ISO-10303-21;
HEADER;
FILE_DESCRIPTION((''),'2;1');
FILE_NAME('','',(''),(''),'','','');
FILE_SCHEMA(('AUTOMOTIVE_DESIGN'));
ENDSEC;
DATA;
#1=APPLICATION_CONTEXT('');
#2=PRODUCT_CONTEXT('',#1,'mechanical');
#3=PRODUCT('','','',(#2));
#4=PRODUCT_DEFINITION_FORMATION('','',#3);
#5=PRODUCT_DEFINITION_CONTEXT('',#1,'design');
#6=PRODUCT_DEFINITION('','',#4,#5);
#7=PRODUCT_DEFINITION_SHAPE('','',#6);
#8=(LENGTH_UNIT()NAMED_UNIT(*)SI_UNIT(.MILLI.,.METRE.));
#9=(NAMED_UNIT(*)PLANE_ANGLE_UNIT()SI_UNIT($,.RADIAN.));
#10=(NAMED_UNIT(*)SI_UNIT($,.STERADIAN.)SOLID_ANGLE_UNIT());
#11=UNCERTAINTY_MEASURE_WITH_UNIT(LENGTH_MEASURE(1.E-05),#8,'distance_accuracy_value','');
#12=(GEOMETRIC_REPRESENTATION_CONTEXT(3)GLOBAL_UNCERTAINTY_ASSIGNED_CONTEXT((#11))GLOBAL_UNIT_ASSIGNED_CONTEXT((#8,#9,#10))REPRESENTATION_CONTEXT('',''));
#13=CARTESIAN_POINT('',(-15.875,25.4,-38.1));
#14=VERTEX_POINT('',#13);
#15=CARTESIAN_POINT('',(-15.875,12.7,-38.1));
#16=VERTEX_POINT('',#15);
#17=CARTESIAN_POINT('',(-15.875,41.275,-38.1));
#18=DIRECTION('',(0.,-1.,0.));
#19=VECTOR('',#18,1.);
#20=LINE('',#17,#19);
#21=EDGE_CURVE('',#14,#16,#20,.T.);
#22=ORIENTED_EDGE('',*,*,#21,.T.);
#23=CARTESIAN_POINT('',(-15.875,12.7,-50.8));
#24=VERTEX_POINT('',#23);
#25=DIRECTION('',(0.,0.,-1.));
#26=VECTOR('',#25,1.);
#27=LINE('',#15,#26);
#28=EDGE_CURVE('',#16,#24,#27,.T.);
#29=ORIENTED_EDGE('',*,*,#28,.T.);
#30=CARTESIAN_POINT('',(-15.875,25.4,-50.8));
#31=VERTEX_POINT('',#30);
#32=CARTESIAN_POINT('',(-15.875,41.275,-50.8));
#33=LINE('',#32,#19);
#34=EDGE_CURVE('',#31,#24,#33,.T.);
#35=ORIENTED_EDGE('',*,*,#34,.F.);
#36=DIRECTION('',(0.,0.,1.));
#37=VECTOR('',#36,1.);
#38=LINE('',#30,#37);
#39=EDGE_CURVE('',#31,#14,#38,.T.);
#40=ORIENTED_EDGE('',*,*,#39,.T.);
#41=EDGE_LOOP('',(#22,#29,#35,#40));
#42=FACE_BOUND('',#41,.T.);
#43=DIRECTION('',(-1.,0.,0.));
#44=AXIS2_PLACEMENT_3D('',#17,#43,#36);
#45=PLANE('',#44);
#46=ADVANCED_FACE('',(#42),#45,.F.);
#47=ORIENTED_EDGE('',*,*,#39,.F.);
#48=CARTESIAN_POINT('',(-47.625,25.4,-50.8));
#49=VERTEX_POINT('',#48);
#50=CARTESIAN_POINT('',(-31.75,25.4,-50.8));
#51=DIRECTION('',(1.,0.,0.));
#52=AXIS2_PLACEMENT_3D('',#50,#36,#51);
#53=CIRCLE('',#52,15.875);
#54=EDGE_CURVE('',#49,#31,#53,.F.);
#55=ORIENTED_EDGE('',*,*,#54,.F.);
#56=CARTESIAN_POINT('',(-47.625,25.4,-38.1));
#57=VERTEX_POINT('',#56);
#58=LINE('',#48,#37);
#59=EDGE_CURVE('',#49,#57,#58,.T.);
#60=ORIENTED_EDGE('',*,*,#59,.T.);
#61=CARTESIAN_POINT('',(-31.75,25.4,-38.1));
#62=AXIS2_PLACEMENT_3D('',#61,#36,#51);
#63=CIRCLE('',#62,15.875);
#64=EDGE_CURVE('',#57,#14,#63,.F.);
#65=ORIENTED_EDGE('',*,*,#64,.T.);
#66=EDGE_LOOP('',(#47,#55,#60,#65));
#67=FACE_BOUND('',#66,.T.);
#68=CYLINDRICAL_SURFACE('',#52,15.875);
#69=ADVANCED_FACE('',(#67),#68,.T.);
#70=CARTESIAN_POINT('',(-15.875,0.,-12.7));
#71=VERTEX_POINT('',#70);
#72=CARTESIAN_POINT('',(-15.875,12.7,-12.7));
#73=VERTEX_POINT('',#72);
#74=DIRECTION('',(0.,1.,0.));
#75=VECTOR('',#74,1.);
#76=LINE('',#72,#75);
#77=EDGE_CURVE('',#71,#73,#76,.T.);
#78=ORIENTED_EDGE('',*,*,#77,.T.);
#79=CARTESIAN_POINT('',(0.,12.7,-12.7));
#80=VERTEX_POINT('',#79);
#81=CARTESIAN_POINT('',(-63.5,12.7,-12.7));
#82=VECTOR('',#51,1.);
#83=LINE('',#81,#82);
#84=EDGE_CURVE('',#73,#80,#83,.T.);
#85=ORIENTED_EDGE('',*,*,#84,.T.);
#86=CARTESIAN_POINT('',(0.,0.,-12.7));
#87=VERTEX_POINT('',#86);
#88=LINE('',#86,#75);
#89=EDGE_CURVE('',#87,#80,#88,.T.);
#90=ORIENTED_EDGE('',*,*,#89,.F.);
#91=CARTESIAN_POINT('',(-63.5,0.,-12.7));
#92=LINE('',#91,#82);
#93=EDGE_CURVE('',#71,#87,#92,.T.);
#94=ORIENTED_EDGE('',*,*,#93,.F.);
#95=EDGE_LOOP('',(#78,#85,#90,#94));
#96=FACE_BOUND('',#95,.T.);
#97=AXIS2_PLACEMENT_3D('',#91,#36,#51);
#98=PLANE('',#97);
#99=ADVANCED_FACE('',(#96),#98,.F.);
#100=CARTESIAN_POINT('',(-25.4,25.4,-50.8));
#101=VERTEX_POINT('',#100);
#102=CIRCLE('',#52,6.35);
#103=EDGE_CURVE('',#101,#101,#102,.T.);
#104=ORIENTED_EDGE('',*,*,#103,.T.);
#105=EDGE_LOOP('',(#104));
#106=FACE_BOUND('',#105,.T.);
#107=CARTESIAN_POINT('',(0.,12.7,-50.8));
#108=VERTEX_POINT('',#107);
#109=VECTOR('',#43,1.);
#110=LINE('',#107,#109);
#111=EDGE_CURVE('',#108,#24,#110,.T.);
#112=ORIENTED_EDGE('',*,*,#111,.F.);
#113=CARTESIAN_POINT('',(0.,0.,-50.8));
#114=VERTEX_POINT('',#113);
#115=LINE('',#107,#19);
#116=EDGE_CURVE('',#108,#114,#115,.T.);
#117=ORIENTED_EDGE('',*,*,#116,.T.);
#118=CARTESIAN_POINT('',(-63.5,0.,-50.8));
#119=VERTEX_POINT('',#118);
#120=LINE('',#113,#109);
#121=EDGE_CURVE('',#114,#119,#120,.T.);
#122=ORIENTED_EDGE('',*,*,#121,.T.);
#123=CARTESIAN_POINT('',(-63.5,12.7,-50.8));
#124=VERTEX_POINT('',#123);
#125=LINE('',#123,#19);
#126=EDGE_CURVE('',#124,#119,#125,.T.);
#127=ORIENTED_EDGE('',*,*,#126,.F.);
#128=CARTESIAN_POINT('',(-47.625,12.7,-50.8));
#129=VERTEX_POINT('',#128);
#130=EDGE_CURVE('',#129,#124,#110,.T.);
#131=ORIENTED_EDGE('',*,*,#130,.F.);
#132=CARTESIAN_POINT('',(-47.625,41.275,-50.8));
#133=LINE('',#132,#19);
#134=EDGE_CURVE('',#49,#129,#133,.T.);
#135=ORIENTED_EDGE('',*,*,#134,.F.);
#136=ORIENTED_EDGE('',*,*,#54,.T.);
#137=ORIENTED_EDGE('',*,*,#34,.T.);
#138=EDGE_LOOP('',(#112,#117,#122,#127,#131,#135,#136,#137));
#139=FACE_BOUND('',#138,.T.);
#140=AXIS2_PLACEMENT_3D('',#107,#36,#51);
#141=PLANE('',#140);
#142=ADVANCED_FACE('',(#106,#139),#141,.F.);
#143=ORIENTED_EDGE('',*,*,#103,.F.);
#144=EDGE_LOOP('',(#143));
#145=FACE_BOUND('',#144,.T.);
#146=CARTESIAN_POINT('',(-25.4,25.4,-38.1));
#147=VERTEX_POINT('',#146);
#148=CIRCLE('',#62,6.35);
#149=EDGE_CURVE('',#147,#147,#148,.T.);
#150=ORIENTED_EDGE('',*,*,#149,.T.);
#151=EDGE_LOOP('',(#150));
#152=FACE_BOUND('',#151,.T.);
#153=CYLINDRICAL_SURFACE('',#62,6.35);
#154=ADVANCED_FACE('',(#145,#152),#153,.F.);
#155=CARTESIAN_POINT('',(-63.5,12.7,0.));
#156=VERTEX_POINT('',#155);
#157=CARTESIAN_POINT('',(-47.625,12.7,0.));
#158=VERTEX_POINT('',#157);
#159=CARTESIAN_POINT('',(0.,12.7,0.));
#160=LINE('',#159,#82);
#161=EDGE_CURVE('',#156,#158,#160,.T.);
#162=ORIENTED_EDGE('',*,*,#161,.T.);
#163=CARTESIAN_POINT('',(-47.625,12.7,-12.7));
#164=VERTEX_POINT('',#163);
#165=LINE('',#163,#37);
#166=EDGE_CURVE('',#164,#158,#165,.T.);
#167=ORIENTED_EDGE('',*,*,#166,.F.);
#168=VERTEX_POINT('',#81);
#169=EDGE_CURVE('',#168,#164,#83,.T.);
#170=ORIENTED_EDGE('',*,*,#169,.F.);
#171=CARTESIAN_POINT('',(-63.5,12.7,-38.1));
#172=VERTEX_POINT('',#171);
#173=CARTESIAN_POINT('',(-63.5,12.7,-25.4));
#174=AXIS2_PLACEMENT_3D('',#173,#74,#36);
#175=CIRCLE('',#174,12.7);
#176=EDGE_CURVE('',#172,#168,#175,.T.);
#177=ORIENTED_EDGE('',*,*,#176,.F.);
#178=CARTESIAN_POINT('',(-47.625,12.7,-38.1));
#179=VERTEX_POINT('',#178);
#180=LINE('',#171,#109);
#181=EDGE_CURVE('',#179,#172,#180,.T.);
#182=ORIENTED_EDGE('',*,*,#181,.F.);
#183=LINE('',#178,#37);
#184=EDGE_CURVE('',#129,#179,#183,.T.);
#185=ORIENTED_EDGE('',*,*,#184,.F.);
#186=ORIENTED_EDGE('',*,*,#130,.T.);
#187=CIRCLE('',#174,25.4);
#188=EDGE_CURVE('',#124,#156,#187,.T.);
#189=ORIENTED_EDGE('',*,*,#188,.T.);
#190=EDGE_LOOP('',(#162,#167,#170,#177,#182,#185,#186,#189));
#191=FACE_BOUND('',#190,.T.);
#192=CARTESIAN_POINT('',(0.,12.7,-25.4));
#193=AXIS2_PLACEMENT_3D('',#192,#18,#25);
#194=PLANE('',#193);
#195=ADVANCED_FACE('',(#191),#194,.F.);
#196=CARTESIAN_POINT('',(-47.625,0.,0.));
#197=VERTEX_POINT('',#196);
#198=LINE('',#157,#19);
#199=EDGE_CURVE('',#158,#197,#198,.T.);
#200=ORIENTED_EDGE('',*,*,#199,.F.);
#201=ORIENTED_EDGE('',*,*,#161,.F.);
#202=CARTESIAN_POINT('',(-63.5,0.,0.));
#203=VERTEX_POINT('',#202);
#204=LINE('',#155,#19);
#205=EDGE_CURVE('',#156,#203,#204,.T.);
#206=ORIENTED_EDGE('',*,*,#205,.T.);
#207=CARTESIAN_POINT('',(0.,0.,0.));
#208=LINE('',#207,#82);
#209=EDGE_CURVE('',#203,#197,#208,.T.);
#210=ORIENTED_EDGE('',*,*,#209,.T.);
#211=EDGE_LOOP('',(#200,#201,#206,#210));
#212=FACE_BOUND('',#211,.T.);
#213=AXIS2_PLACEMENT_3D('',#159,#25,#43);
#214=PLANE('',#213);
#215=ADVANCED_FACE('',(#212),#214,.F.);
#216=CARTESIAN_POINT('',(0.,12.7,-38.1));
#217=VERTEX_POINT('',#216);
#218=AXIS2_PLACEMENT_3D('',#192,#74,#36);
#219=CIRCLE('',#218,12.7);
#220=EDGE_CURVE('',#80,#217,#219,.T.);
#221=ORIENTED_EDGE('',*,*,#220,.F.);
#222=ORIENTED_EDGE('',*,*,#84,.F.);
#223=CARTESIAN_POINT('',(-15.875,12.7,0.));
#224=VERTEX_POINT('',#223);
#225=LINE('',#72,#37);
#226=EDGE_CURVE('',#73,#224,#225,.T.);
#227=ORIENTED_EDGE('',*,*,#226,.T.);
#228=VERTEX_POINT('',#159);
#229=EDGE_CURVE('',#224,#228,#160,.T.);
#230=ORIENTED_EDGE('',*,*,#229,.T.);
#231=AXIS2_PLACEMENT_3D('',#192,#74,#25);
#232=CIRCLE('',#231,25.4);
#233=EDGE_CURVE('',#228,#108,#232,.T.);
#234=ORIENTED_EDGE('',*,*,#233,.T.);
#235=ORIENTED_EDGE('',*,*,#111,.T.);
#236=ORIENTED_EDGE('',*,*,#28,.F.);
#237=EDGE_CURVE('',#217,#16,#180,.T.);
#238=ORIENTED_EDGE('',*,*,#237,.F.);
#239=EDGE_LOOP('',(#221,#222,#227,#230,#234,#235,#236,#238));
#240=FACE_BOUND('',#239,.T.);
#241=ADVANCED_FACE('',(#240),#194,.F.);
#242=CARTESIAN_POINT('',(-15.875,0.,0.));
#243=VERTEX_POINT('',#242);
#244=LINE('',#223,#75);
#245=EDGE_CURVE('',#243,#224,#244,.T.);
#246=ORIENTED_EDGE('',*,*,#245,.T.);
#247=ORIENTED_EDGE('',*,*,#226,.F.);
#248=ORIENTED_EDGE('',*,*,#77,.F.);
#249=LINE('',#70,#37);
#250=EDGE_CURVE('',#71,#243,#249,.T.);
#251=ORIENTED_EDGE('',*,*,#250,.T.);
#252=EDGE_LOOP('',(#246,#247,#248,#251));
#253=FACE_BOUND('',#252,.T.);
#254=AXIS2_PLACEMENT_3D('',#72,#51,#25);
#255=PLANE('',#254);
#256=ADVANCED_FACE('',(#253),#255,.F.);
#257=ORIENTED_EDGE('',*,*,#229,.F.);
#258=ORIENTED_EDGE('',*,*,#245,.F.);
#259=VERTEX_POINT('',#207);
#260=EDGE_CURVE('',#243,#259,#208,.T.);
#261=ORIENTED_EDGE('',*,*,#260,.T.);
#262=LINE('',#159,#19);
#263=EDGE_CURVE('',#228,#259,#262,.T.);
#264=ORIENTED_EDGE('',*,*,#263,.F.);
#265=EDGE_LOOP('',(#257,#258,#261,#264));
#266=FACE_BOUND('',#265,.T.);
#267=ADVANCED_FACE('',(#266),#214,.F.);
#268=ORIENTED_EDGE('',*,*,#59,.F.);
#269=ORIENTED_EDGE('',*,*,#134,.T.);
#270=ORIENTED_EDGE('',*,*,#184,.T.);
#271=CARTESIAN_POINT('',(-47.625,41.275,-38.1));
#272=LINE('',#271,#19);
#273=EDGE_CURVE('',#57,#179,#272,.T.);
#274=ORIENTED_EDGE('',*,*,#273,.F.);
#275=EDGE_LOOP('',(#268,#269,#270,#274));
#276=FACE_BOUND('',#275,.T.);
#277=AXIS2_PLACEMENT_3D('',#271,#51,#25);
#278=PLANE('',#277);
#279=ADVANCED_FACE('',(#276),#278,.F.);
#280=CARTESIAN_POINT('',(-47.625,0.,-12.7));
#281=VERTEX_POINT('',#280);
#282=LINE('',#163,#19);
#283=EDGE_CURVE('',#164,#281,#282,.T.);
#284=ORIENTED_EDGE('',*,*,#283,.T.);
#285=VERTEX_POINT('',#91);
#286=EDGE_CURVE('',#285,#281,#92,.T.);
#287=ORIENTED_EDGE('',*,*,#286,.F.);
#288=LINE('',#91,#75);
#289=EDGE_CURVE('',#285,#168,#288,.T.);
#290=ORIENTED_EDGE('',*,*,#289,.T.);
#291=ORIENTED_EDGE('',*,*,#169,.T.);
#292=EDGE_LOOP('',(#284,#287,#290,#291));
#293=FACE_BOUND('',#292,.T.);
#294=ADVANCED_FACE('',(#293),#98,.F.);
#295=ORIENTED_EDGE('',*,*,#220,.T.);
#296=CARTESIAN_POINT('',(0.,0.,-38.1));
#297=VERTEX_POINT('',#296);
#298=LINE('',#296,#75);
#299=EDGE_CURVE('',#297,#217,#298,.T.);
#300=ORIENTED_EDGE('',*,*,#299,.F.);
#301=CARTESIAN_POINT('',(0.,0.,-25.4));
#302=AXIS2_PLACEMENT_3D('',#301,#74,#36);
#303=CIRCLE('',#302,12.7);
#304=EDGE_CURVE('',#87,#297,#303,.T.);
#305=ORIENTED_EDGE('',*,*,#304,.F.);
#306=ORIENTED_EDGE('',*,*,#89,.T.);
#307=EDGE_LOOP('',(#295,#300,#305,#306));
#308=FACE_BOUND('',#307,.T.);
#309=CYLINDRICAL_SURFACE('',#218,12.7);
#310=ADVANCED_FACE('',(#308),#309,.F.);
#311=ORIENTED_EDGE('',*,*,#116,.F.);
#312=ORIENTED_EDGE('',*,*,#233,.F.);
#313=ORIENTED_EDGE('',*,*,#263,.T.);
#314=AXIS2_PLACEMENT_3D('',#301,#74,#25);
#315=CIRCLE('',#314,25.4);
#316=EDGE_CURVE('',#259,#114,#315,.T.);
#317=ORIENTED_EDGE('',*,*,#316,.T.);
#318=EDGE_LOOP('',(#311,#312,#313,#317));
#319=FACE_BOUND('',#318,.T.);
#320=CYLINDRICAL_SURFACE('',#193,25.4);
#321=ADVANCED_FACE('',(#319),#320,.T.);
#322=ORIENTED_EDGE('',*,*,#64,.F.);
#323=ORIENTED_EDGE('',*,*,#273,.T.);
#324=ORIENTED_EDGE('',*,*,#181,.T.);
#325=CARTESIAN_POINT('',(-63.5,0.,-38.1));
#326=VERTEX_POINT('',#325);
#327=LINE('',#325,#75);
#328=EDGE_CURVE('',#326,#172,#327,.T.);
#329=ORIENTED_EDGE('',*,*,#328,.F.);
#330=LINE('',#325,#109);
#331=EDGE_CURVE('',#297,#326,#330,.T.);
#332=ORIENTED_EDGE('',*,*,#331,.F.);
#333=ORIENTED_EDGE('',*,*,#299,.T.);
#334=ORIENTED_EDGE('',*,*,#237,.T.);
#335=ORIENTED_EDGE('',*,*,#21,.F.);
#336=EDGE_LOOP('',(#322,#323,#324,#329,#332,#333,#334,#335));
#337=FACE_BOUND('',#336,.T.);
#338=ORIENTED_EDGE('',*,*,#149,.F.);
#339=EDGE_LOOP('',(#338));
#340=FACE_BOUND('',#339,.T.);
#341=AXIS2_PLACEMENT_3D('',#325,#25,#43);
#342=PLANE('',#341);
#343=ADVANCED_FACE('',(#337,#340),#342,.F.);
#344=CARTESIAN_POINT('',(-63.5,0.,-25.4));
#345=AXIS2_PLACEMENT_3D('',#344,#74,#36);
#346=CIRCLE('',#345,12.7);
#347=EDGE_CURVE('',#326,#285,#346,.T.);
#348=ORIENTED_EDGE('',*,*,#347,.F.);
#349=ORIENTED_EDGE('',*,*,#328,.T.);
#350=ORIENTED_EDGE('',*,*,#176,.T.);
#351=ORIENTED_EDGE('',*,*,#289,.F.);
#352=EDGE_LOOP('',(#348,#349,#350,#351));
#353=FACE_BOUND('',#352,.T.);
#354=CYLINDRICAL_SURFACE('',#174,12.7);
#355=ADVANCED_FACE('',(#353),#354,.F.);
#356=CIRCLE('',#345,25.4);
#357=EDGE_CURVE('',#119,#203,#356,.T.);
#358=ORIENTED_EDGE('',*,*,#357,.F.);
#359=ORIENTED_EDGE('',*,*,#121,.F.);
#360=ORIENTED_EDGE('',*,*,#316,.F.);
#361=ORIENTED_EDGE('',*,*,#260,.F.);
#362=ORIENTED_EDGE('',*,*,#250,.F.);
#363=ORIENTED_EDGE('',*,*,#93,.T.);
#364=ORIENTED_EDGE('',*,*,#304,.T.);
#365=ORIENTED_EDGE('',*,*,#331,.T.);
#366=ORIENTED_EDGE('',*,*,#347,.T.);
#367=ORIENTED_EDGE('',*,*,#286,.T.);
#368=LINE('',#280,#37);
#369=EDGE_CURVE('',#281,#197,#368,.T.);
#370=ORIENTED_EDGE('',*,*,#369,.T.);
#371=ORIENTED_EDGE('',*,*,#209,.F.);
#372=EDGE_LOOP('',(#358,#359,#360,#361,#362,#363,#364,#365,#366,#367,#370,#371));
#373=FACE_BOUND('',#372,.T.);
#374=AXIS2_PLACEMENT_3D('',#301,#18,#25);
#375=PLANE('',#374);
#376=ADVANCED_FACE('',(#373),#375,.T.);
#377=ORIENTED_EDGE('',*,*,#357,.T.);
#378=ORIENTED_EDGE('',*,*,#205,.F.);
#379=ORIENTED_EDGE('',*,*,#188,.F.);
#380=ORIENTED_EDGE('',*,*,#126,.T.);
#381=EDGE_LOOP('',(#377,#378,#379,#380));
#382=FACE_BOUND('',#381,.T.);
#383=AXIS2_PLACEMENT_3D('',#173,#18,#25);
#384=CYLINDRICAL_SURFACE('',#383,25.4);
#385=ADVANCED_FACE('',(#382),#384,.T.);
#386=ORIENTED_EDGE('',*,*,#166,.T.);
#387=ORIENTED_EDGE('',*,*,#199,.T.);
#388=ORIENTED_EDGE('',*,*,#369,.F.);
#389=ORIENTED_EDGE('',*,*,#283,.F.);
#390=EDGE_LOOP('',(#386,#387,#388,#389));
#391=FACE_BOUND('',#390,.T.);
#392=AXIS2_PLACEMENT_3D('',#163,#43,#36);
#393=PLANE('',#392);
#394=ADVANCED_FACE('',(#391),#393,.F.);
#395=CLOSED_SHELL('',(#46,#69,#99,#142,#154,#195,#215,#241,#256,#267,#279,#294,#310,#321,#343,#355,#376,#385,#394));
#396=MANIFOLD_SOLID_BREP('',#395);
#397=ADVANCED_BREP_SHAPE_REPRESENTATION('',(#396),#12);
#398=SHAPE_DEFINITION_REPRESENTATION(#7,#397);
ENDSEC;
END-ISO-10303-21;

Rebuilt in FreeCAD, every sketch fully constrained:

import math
import FreeCAD as App
import Part
import Sketcher
from FreeCAD import Vector
Q = App.Units.Quantity


def add_polygon(sketch, points):
    """Adds a closed chain of lines whose ends are joined by coincident constraints."""
    first, n = sketch.GeometryCount, len(points)
    for a, b in zip(points, points[1:] + points[:1]):
        sketch.addGeometry(Part.LineSegment(App.Vector(*a, 0), App.Vector(*b, 0)), False)
    for i in range(n):
        sketch.addConstraint(Sketcher.Constraint("Coincident", first + i, 2, first + (i + 1) % n, 1))

doc = App.newDocument("Part")
body = doc.addObject("PartDesign::Body", "Body")

sketch1 = doc.addObject("Sketcher::SketchObject", "Sketch")
body.addObject(sketch1)
sketch1.AttachmentSupport = (doc.XZ_Plane, [""])
sketch1.MapMode = "FlatFace"
sketch1.addGeometry([
    Part.LineSegment(Vector(-63.5, 0, 0), Vector(0, 0, 0)),
    Part.ArcOfCircle(Part.Circle(Vector(0, -25.4, 0), Vector(0, 0, 1), 25.4), math.radians(-90), math.radians(90)),
    Part.LineSegment(Vector(0, -50.8, 0), Vector(-63.5, -50.8, 0)),
    Part.ArcOfCircle(Part.Circle(Vector(-63.5, -25.4, 0), Vector(0, 0, 1), 25.4), math.radians(90), math.radians(270)),
], False)
sketch1.addConstraint([
    Sketcher.Constraint("Tangent", 0, 2, 1, 2),
    Sketcher.Constraint("Tangent", 1, 1, 2, 1),
    Sketcher.Constraint("Tangent", 2, 2, 3, 2),
    Sketcher.Constraint("Tangent", 3, 1, 0, 1),
    Sketcher.Constraint("Horizontal", 0),
    Sketcher.Constraint("Horizontal", 2),
    Sketcher.Constraint("Coincident", 0, 2, -1, 1),
    Sketcher.Constraint("Radius", 1, Q("1 in")),
    Sketcher.Constraint("DistanceX", 0, 1, 0, 2, Q("2.5 in")),
])
pad1 = doc.addObject("PartDesign::Pad", "Pad")
body.addObject(pad1)
pad1.Profile = sketch1
pad1.Length = Q("0.5 in")
pad1.Reversed = True

sketch2 = doc.addObject("Sketcher::SketchObject", "Sketch001")
body.addObject(sketch2)
sketch2.AttachmentSupport = (doc.XZ_Plane, [""])
sketch2.MapMode = "FlatFace"
sketch2.AttachmentOffset = App.Placement(Vector(0, 0, -0.5 * 25.4), App.Rotation())
sketch2.addGeometry([
    Part.Circle(Vector(-63.5, -25.4, 0), Vector(0, 0, 1), 12.7),
    Part.Circle(Vector(0, -25.4, 0), Vector(0, 0, 1), 12.7),
], False)
sketch2.addConstraint([
    Sketcher.Constraint("Equal", 0, 1),
    Sketcher.Constraint("PointOnObject", 1, 3, -2),
    Sketcher.Constraint("Horizontal", 0, 3, 1, 3),
    Sketcher.Constraint("Diameter", 0, Q("1 in")),
    Sketcher.Constraint("DistanceY", 0, 3, -1, 1, Q("1 in")),
    Sketcher.Constraint("DistanceX", 0, 3, -1, 1, Q("2.5 in")),
])
doc.recompute()
hole = doc.addObject("PartDesign::Hole", "Hole")
body.addObject(hole)
hole.Profile = sketch2
hole.ThreadType = "None"
hole.Diameter = Q("1 in")
hole.DepthType = "ThroughAll"
hole.Reversed = True

sketch3 = doc.addObject("Sketcher::SketchObject", "Sketch002")
body.addObject(sketch3)
sketch3.AttachmentSupport = (doc.XZ_Plane, [""])
sketch3.MapMode = "FlatFace"
sketch3.AttachmentOffset = App.Placement(Vector(0, 0, -0.5 * 25.4), App.Rotation())
add_polygon(sketch3, [(-63.5, -38.1), (-63.5, -12.7), (0, -12.7), (0, -38.1)])
sketch3.addConstraint([
    Sketcher.Constraint("Vertical", 0),
    Sketcher.Constraint("Horizontal", 1),
    Sketcher.Constraint("Vertical", 2),
    Sketcher.Constraint("Horizontal", 3),
    Sketcher.Constraint("PointOnObject", 1, 2, -2),
    Sketcher.Constraint("DistanceY", 0, 1, 0, 2, Q("1 in")),
    Sketcher.Constraint("DistanceX", 1, 1, 1, 2, Q("2.5 in")),
    Sketcher.Constraint("DistanceY", 0, 2, -1, 1, Q("0.5 in")),
])
pocket1 = doc.addObject("PartDesign::Pocket", "Pocket")
body.addObject(pocket1)
pocket1.Profile = sketch3
pocket1.Length = Q("0.5 in")
pocket1.Reversed = True

sketch4 = doc.addObject("Sketcher::SketchObject", "Sketch003")
body.addObject(sketch4)
sketch4.AttachmentSupport = (doc.XY_Plane, [""])
sketch4.MapMode = "FlatFace"
add_polygon(sketch4, [(-47.625, 12.7), (-47.625, 0), (-15.875, 0), (-15.875, 12.7)])
sketch4.addConstraint([
    Sketcher.Constraint("Vertical", 0),
    Sketcher.Constraint("Horizontal", 1),
    Sketcher.Constraint("Vertical", 2),
    Sketcher.Constraint("Horizontal", 3),
    Sketcher.Constraint("PointOnObject", 0, 2, -1),
    Sketcher.Constraint("DistanceY", 0, 2, 0, 1, Q("0.5 in")),
    Sketcher.Constraint("DistanceX", 1, 1, 1, 2, Q("1.25 in")),
    Sketcher.Constraint("DistanceX", 0, 2, -1, 1, Q("1.875 in")),
])
pocket2 = doc.addObject("PartDesign::Pocket", "Pocket001")
body.addObject(pocket2)
pocket2.Profile = sketch4
pocket2.Length = Q("0.5 in")

sketch5 = doc.addObject("Sketcher::SketchObject", "Sketch004")
body.addObject(sketch5)
sketch5.AttachmentSupport = (doc.XZ_Plane, [""])
sketch5.MapMode = "FlatFace"
sketch5.AttachmentOffset = App.Placement(Vector(0, 0, -0.5 * 25.4), App.Rotation())
add_polygon(sketch5, [(-47.625, -50.8), (-47.625, -38.1), (-15.875, -38.1), (-15.875, -50.8)])
sketch5.addConstraint([
    Sketcher.Constraint("Vertical", 0),
    Sketcher.Constraint("Horizontal", 1),
    Sketcher.Constraint("Vertical", 2),
    Sketcher.Constraint("Horizontal", 3),
    Sketcher.Constraint("DistanceY", 0, 1, 0, 2, Q("0.5 in")),
    Sketcher.Constraint("DistanceY", 2, 2, -1, 1, Q("2 in")),
    Sketcher.Constraint("DistanceX", 1, 1, 1, 2, Q("1.25 in")),
    Sketcher.Constraint("DistanceX", 0, 2, -1, 1, Q("1.875 in")),
])
pad2 = doc.addObject("PartDesign::Pad", "Pad001")
body.addObject(pad2)
pad2.Profile = sketch5
pad2.Length = Q("1.125 in")
pad2.Reversed = True

sketch6 = doc.addObject("Sketcher::SketchObject", "Sketch005")
body.addObject(sketch6)
sketch6.AttachmentSupport = (doc.XY_Plane, [""])
sketch6.MapMode = "FlatFace"
sketch6.AttachmentOffset = App.Placement(Vector(0, 0, -1.5 * 25.4), App.Rotation())
sketch6.addGeometry(Part.Circle(Vector(-31.75, 25.4, 0), Vector(0, 0, 1), 6.35), False)
sketch6.addConstraint([
    Sketcher.Constraint("Diameter", 0, Q("0.5 in")),
    Sketcher.Constraint("DistanceY", -1, 1, 0, 3, Q("1 in")),
    Sketcher.Constraint("DistanceX", 0, 3, -1, 1, Q("1.25 in")),
])
doc.recompute()
hole2 = doc.addObject("PartDesign::Hole", "Hole001")
body.addObject(hole2)
hole2.Profile = sketch6
hole2.ThreadType = "None"
hole2.Diameter = Q("0.5 in")
hole2.DepthType = "ThroughAll"

sketch7 = doc.addObject("Sketcher::SketchObject", "Sketch006")
body.addObject(sketch7)
sketch7.AttachmentSupport = (doc.XY_Plane, [""])
sketch7.MapMode = "FlatFace"
sketch7.AttachmentOffset = App.Placement(Vector(0, 0, -1.5 * 25.4), App.Rotation())
sketch7.addGeometry([
    Part.LineSegment(Vector(-31.75, 41.275, 0), Vector(-47.625, 41.275, 0)),
    Part.LineSegment(Vector(-47.625, 41.275, 0), Vector(-47.625, 25.4, 0)),
    Part.ArcOfCircle(Part.Circle(Vector(-31.75, 25.4, 0), Vector(0, 0, 1), 15.875), math.radians(90), math.radians(180)),
    Part.LineSegment(Vector(-15.875, 41.275, 0), Vector(-31.75, 41.275, 0)),
    Part.ArcOfCircle(Part.Circle(Vector(-31.75, 25.4, 0), Vector(0, 0, 1), 15.875), math.radians(0), math.radians(90)),
    Part.LineSegment(Vector(-15.875, 25.4, 0), Vector(-15.875, 41.275, 0)),
], False)
sketch7.addConstraint([
    Sketcher.Constraint("Coincident", 0, 2, 1, 1),
    Sketcher.Constraint("Tangent", 1, 2, 2, 2),
    Sketcher.Constraint("Tangent", 2, 1, 0, 1),
    Sketcher.Constraint("Tangent", 3, 2, 4, 2),
    Sketcher.Constraint("Tangent", 4, 1, 5, 1),
    Sketcher.Constraint("Coincident", 5, 2, 3, 1),
    Sketcher.Constraint("Horizontal", 0),
    Sketcher.Constraint("Vertical", 1),
    Sketcher.Constraint("Horizontal", 3),
    Sketcher.Constraint("Vertical", 5),
    Sketcher.Constraint("Coincident", 4, 3, 2, 3),
    Sketcher.Constraint("Equal", 2, 4),
    Sketcher.Constraint("DistanceY", -1, 1, 2, 3, Q("1 in")),
    Sketcher.Constraint("Radius", 2, Q("0.625 in")),
    Sketcher.Constraint("DistanceX", 2, 3, -1, 1, Q("1.25 in")),
])
pocket3 = doc.addObject("PartDesign::Pocket", "Pocket002")
body.addObject(pocket3)
pocket3.Profile = sketch7
pocket3.Length = Q("0.5 in")

doc.recompute()
